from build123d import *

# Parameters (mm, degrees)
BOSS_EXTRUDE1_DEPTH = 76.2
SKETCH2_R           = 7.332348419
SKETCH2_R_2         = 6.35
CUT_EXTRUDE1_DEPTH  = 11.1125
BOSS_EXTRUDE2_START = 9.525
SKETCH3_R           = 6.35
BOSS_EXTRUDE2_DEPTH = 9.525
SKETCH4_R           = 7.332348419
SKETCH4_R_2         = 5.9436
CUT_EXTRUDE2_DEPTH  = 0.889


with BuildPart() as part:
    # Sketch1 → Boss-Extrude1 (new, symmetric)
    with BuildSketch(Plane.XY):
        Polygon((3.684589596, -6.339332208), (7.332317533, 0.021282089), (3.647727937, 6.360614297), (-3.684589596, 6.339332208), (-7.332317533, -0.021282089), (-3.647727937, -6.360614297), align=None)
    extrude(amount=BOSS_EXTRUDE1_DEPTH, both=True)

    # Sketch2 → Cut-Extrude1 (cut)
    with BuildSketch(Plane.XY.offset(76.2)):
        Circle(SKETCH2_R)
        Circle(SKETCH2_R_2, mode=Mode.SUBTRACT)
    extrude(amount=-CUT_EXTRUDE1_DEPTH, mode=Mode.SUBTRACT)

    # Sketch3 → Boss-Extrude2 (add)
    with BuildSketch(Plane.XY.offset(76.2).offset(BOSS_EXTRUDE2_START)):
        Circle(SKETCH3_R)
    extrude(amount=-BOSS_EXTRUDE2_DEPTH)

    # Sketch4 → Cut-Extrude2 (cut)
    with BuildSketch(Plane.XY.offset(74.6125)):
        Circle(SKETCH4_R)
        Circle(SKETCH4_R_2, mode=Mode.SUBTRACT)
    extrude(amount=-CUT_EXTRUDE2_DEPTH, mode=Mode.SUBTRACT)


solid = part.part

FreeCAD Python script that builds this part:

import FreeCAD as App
import Part
import Sketcher
from FreeCAD import Vector
Q = App.Units.Quantity


def add_polygon(sketch, points):
    """Adds a closed chain of lines whose ends are joined by coincident constraints."""
    first, n = sketch.GeometryCount, len(points)
    for a, b in zip(points, points[1:] + points[:1]):
        sketch.addGeometry(Part.LineSegment(App.Vector(*a, 0), App.Vector(*b, 0)), False)
    for i in range(n):
        sketch.addConstraint(Sketcher.Constraint("Coincident", first + i, 2, first + (i + 1) % n, 1))

doc = App.newDocument("Part")
params = doc.addObject("Spreadsheet::Sheet", "Params")
for row, (alias, value) in enumerate([
    ("pad1_length", "6 in"),
    ("sketch2_diameter", "0.5 in"),
    ("pocket1_length", "0.4375 in"),
    ("sketch3_diameter", "0.5 in"),
    ("pad2_length", "0.375 in"),
    ("sketch4_diameter", "0.468 in"),
    ("pocket2_length", "0.035 in"),
], start=1):
    params.set(f"A{row}", alias)
    params.set(f"B{row}", "=" + value)
    params.setAlias(f"B{row}", alias)

body = doc.addObject("PartDesign::Body", "Body")

# Sketch on XY plane
sketch1 = doc.addObject("Sketcher::SketchObject", "Sketch")
body.addObject(sketch1)
sketch1.AttachmentSupport = (doc.XY_Plane, [""])
sketch1.MapMode = "FlatFace"
add_polygon(sketch1, [(3.68459, -6.339332), (7.332318, 0.021282), (3.647728, 6.360614), (-3.68459, 6.339332), (-7.332318, -0.021282), (-3.647728, -6.360614)])  # lines 0-5
sketch1.addConstraint([
    Sketcher.Constraint("Symmetric", 0, 2, 3, 2, -1, 1),
    Sketcher.Constraint("Symmetric", 1, 2, 4, 2, -1, 1),
    Sketcher.Constraint("Symmetric", 2, 2, 5, 2, -1, 1),
    Sketcher.Constraint("Equal", 0, 1),
    Sketcher.Constraint("Equal", 1, 2),
    Sketcher.Constraint("Distance", 0, Q("7.332348 mm")),
    Sketcher.Constraint("DistanceX", 2, 2, -1, 1, Q("3.68459 mm")),
    Sketcher.Constraint("DistanceX", 1, 2, 0, 2, Q("3.68459 mm")),
    Sketcher.Constraint("DistanceY", 0, 2, 2, 2, Q("6.31805 mm")),
])
pad1 = doc.addObject("PartDesign::Pad", "Pad")
body.addObject(pad1)
pad1.Profile = sketch1
pad1.setExpression("Length", "Params.pad1_length")
pad1.Midplane = True

# Sketch on XY plane
sketch2 = doc.addObject("Sketcher::SketchObject", "Sketch001")
body.addObject(sketch2)
sketch2.AttachmentSupport = (doc.XY_Plane, [""])
sketch2.MapMode = "FlatFace"
sketch2.AttachmentOffset = App.Placement(Vector(0, 0, 3 * 25.4), App.Rotation())
sketch2.addGeometry([
    Part.Circle(Vector(0, 0, 0), Vector(0, 0, 1), 7.332348),
    Part.Circle(Vector(0, 0, 0), Vector(0, 0, 1), 6.35),
], False)
sketch2.addConstraint([
    Sketcher.Constraint("Coincident", 0, 3, -1, 1),
    Sketcher.Constraint("Coincident", 1, 3, -1, 1),
    Sketcher.Constraint("Diameter", 1, Q("0.5 in")),
    Sketcher.Constraint("Diameter", 0, Q("14.664697 mm")),
])
sketch2.setExpression("Constraints[2]", "Params.sketch2_diameter")
pocket1 = doc.addObject("PartDesign::Pocket", "Pocket")
body.addObject(pocket1)
pocket1.Profile = sketch2
pocket1.setExpression("Length", "Params.pocket1_length")

# Sketch on XY plane
sketch3 = doc.addObject("Sketcher::SketchObject", "Sketch002")
body.addObject(sketch3)
sketch3.AttachmentSupport = (doc.XY_Plane, [""])
sketch3.MapMode = "FlatFace"
sketch3.AttachmentOffset = App.Placement(Vector(0, 0, 3.375 * 25.4), App.Rotation())
sketch3.addGeometry(Part.Circle(Vector(0, 0, 0), Vector(0, 0, 1), 6.35), False)
sketch3.addConstraint([
    Sketcher.Constraint("Coincident", 0, 3, -1, 1),
    Sketcher.Constraint("Diameter", 0, Q("0.5 in")),
])
sketch3.setExpression("Constraints[1]", "Params.sketch3_diameter")
pad2 = doc.addObject("PartDesign::Pad", "Pad001")
body.addObject(pad2)
pad2.Profile = sketch3
pad2.setExpression("Length", "Params.pad2_length")
pad2.Reversed = True

# Sketch on XY plane
sketch4 = doc.addObject("Sketcher::SketchObject", "Sketch003")
body.addObject(sketch4)
sketch4.AttachmentSupport = (doc.XY_Plane, [""])
sketch4.MapMode = "FlatFace"
sketch4.AttachmentOffset = App.Placement(Vector(0, 0, 2.9375 * 25.4), App.Rotation())
sketch4.addGeometry([
    Part.Circle(Vector(0, 0, 0), Vector(0, 0, 1), 7.332348),
    Part.Circle(Vector(0, 0, 0), Vector(0, 0, 1), 5.9436),
], False)
sketch4.addConstraint([
    Sketcher.Constraint("Coincident", 0, 3, -1, 1),
    Sketcher.Constraint("Coincident", 1, 3, -1, 1),
    Sketcher.Constraint("Diameter", 1, Q("0.468 in")),
    Sketcher.Constraint("Diameter", 0, Q("14.664697 mm")),
])
sketch4.setExpression("Constraints[2]", "Params.sketch4_diameter")
pocket2 = doc.addObject("PartDesign::Pocket", "Pocket001")
body.addObject(pocket2)
pocket2.Profile = sketch4
pocket2.setExpression("Length", "Params.pocket2_length")

doc.recompute()
